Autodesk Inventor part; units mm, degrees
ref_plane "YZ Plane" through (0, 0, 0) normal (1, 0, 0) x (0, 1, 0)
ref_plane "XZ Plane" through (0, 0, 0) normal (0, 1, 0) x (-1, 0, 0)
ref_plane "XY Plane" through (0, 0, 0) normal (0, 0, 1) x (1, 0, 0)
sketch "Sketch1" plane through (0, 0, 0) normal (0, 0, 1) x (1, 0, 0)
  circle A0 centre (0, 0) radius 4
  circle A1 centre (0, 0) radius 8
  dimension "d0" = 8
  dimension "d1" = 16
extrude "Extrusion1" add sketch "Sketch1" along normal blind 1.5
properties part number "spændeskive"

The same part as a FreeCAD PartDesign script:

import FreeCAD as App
import Part
import Sketcher

V = App.Vector

doc = App.newDocument("Part")
body = doc.addObject("PartDesign::Body", "Body")

sketch1 = body.newObject("Sketcher::SketchObject", "Sketch")
sketch1.AttachmentSupport = (doc.getObject("XY_Plane"), [""])
sketch1.MapMode = "FlatFace"
sketch1.addGeometry([
    Part.Circle(V(0, 0, 0), V(0, 0, 1), 8),
    Part.Circle(V(0, 0, 0), V(0, 0, 1), 4),
], False)
sketch1.addConstraint([
    Sketcher.Constraint("Coincident", 0, 3, -1, 1),
    Sketcher.Constraint("Coincident", 1, 3, -1, 1),
    Sketcher.Constraint("Diameter", 0, 16.0),
    Sketcher.Constraint("Diameter", 1, 8.0),
])
pad1 = body.newObject("PartDesign::Pad", "Pad")
pad1.Profile = sketch1
pad1.Length = 1.5

doc.recompute()
